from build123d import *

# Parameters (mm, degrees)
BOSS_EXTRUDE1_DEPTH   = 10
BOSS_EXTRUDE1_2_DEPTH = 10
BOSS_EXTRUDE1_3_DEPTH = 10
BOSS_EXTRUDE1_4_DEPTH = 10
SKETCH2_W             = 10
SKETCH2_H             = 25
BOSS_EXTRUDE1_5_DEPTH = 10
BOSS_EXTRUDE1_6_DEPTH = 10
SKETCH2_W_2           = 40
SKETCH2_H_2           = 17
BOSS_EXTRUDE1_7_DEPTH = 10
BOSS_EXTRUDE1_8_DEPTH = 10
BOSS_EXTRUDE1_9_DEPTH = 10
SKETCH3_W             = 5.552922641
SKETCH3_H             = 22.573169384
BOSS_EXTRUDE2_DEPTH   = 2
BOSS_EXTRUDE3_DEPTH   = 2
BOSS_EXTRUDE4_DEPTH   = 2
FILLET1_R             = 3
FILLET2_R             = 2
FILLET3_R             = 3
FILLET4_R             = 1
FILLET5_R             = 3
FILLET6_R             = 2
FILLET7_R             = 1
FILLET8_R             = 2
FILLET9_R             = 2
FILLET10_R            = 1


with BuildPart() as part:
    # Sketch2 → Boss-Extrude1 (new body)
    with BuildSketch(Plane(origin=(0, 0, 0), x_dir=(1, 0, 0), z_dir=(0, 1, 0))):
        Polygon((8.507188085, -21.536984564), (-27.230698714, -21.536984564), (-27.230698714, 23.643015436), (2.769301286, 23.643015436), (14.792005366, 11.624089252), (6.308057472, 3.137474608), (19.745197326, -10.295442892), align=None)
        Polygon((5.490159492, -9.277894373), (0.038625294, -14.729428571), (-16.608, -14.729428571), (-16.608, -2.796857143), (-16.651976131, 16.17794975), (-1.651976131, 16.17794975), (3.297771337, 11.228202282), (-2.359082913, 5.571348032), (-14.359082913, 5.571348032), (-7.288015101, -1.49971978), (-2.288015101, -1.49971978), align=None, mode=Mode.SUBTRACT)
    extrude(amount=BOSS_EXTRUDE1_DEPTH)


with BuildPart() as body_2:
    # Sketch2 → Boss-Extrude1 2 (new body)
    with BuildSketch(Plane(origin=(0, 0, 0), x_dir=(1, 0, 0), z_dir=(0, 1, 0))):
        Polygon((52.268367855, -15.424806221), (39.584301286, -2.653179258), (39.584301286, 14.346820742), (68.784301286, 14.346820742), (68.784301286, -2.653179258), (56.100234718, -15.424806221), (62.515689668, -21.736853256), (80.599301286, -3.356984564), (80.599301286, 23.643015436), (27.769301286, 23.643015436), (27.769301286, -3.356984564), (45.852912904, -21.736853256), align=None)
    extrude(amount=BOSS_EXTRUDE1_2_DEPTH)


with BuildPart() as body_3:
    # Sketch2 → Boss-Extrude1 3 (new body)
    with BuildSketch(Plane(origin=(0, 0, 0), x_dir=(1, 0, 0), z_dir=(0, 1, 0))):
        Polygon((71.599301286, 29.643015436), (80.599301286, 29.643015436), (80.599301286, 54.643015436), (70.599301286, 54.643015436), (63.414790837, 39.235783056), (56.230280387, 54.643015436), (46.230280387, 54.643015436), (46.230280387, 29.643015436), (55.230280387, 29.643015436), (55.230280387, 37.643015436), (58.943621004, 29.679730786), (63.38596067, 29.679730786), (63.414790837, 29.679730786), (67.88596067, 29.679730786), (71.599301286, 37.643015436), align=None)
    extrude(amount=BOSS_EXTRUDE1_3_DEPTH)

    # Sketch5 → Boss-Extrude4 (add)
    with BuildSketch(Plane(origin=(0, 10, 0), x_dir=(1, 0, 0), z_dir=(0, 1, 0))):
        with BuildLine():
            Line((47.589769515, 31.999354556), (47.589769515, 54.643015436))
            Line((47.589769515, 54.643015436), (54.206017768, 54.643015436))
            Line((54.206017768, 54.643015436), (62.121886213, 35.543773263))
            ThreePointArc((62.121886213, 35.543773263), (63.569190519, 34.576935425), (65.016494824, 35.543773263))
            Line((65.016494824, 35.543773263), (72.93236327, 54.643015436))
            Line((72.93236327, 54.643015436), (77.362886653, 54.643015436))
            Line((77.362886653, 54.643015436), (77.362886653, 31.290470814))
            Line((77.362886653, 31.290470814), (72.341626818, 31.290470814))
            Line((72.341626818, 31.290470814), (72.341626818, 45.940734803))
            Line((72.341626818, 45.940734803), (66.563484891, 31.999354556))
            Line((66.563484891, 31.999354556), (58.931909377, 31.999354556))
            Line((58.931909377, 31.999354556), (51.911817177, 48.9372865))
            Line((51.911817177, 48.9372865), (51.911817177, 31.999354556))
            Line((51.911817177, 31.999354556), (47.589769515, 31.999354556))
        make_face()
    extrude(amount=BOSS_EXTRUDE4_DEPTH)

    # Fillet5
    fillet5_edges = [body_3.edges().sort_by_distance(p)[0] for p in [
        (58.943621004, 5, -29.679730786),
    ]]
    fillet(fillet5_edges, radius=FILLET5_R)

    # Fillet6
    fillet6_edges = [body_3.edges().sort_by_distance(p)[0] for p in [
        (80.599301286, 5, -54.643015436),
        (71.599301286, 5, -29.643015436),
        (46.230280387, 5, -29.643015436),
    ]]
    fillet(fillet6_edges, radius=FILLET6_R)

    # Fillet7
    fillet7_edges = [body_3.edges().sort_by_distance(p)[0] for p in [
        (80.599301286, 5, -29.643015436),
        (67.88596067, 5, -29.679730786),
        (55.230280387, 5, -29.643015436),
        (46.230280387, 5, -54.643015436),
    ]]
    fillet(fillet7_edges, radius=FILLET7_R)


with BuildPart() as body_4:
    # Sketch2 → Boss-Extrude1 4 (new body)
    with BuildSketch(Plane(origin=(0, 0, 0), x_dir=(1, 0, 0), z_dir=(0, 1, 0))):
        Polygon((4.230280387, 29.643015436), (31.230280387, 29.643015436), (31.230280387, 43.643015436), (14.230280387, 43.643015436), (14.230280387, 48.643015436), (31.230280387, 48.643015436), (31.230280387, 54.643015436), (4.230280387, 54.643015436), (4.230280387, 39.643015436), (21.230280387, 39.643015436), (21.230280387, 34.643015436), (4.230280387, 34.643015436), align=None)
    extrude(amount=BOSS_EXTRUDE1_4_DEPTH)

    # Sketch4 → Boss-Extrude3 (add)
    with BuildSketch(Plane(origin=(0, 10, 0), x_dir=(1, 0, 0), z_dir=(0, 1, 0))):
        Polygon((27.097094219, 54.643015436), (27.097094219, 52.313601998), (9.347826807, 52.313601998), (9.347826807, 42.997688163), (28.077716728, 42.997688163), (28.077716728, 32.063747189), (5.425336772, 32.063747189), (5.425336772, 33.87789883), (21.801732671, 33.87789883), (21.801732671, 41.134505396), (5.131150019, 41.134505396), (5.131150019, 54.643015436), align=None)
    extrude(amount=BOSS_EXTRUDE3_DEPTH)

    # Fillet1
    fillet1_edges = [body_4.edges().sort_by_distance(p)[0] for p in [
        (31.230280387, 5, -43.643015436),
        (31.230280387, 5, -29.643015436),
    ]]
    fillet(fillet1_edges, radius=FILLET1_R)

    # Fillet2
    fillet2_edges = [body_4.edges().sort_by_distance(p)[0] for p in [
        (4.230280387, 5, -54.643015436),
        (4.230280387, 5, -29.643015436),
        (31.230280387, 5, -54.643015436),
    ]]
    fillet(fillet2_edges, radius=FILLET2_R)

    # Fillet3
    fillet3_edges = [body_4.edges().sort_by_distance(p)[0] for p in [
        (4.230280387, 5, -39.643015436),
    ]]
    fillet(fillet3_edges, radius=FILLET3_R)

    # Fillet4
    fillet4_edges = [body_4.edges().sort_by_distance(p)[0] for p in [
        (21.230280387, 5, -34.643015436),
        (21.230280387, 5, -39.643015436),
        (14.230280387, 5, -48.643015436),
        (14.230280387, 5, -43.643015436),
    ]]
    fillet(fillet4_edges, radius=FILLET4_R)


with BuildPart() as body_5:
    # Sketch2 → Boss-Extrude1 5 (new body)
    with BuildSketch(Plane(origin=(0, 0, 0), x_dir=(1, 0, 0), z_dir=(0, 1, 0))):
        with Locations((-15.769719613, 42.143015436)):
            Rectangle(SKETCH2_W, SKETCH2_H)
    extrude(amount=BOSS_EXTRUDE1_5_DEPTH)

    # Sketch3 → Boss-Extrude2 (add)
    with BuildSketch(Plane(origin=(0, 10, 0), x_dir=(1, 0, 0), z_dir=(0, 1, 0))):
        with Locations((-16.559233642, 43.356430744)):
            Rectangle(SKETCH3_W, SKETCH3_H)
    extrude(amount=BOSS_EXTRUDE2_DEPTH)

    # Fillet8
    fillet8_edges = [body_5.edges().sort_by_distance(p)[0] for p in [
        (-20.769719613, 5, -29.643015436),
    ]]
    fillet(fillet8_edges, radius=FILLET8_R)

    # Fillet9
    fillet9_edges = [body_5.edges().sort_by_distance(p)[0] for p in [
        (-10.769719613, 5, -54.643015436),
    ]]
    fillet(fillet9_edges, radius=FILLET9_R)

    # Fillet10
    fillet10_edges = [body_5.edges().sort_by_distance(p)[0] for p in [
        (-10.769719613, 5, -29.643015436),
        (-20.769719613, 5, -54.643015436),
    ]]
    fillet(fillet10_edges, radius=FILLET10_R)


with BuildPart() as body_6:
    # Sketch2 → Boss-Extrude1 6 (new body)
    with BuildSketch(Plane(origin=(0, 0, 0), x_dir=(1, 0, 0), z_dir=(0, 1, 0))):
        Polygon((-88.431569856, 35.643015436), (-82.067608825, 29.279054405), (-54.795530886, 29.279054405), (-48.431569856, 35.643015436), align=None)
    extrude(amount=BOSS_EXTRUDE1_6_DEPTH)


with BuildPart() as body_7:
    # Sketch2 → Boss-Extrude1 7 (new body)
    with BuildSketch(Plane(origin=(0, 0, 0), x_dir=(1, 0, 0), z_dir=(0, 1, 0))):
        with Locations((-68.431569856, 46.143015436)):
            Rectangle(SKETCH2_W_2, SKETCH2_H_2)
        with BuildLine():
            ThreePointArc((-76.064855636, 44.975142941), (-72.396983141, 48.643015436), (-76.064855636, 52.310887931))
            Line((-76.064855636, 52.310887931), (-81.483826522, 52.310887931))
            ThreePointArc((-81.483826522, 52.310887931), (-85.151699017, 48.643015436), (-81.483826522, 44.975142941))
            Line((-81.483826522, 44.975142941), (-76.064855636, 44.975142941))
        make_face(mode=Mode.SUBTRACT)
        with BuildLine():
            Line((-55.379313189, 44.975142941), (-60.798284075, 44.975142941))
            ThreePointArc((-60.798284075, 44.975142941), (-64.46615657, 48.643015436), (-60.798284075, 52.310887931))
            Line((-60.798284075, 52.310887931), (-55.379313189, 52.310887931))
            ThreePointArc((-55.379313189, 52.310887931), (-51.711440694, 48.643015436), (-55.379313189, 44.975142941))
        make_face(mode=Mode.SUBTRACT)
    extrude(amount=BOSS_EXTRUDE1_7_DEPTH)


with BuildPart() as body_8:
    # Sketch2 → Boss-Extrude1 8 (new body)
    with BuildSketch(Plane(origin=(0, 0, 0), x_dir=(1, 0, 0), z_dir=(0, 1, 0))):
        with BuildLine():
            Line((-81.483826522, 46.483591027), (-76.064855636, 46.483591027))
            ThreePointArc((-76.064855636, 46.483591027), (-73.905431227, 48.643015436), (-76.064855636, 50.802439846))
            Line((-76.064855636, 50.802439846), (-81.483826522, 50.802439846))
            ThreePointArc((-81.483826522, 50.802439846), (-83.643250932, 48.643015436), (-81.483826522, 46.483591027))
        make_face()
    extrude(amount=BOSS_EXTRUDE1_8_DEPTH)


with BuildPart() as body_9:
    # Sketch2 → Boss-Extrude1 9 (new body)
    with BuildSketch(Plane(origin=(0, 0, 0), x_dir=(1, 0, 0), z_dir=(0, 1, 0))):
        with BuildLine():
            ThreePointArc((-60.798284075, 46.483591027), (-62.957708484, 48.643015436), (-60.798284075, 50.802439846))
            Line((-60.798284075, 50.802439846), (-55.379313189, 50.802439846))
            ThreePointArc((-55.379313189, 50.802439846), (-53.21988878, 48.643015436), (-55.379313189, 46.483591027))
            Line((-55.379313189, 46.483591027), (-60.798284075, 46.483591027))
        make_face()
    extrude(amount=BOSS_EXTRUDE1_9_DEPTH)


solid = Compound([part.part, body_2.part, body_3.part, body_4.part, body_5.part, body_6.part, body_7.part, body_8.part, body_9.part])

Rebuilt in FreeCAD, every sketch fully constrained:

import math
import FreeCAD as App
import Part
import Sketcher

V = App.Vector
Q = App.Units.Quantity


def edges_at(feature, points):
    """Names of the edges that pass closest to the given points."""
    edges = feature.Shape.Edges
    near = lambda p: min(range(len(edges)), key=lambda i: edges[i].distToShape(Part.Vertex(*p))[0])
    return sorted({f"Edge{near(p) + 1}" for p in points})


def add_polygon(sketch, points):
    """Adds a closed chain of lines whose ends are joined by coincident constraints."""
    first, n = sketch.GeometryCount, len(points)
    for a, b in zip(points, points[1:] + points[:1]):
        sketch.addGeometry(Part.LineSegment(App.Vector(*a, 0), App.Vector(*b, 0)), False)
    for i in range(n):
        sketch.addConstraint(Sketcher.Constraint("Coincident", first + i, 2, first + (i + 1) % n, 1))

doc = App.newDocument("Part")
params = doc.addObject("Spreadsheet::Sheet", "Params")
for row, (alias, value) in enumerate([
    ("sketch1_width", "30 mm"),
    ("sketch1_width2", "15 mm"),
    ("sketch1_width3", "12 mm"),
    ("sketch1_width4", "5 mm"),
    ("sketch1_length", "19 mm"),
    ("pad1_length", "10 mm"),
    ("sketch2_height", "17 mm"),
    ("sketch2_height2", "27 mm"),
    ("sketch2_length", "18 mm"),
    ("sketch2_length2", "9 mm"),
    ("sketch2_width", "29.2 mm"),
    ("pad2_length", "10 mm"),
    ("sketch3_width", "9 mm"),
    ("sketch3_width2", "10 mm"),
    ("sketch3_height", "25 mm"),
    ("sketch3_height2", "8 mm"),
    ("sketch3_length", "17 mm"),
    ("pad3_length", "10 mm"),
    ("pad4_length", "2 mm"),
    ("fillet_radius", "3 mm"),
    ("fillet2_radius", "2 mm"),
    ("fillet3_radius", "1 mm"),
    ("sketch5_width", "27 mm"),
    ("sketch5_width2", "17 mm"),
    ("sketch5_height", "14 mm"),
    ("sketch5_height2", "5 mm"),
    ("sketch5_height3", "6 mm"),
    ("pad5_length", "10 mm"),
    ("pad6_length", "2 mm"),
    ("fillet4_radius", "3 mm"),
    ("fillet5_radius", "2 mm"),
    ("fillet6_radius", "3 mm"),
    ("fillet7_radius", "1 mm"),
    ("sketch7_width", "10 mm"),
    ("sketch7_height", "25 mm"),
    ("pad7_length", "10 mm"),
    ("pad8_length", "2 mm"),
    ("fillet8_radius", "2 mm"),
    ("fillet9_radius", "2 mm"),
    ("fillet10_radius", "1 mm"),
    ("sketch9_width", "40 mm"),
    ("sketch9_length", "9 mm"),
    ("pad9_length", "10 mm"),
    ("sketch10_width", "40 mm"),
    ("sketch10_height", "17 mm"),
    ("pad10_length", "10 mm"),
    ("pad11_length", "10 mm"),
    ("pad12_length", "10 mm"),
], start=1):
    params.set(f"A{row}", alias)
    params.set(f"B{row}", "=" + value)
    params.setAlias(f"B{row}", alias)

body = doc.addObject("PartDesign::Body", "Body")

# Sketch on XZ plane
sketch1 = body.newObject("Sketcher::SketchObject", "Sketch")
sketch1.AttachmentSupport = (doc.getObject("XZ_Plane"), [""])
sketch1.MapMode = "FlatFace"
add_polygon(sketch1, [(-27.230699, 21.536985), (8.507188, 21.536985), (19.745197, 10.295443), (6.308057, -3.137475), (14.792005, -11.624089), (2.769301, -23.643015), (-27.230699, -23.643015)])  # lines 0-6
add_polygon(sketch1, [(5.490159, 9.277894), (0.038625, 14.729429), (-16.608, 14.729429), (-16.608, 2.796857), (-16.651976, -16.17795), (-1.651976, -16.17795), (3.297771, -11.228202), (-2.359083, -5.571348), (-14.359083, -5.571348), (-7.288015, 1.49972), (-2.288015, 1.49972)])  # lines 7-17
sketch1.addConstraint(Sketcher.Constraint("Horizontal", 0))
sketch1.addConstraint(Sketcher.Constraint("Horizontal", 5))
sketch1.addConstraint(Sketcher.Constraint("Vertical", 6))
sketch1.addConstraint(Sketcher.Constraint("Horizontal", 8))
sketch1.addConstraint(Sketcher.Constraint("Vertical", 9))
sketch1.addConstraint(Sketcher.Constraint("Horizontal", 11))
sketch1.addConstraint(Sketcher.Constraint("Horizontal", 14))
sketch1.addConstraint(Sketcher.Constraint("Horizontal", 16))
sketch1.addConstraint(Sketcher.Constraint("Perpendicular", 1, 2))
sketch1.addConstraint(Sketcher.Constraint("Perpendicular", 2, 3))
sketch1.addConstraint(Sketcher.Constraint("Perpendicular", 3, 4))
sketch1.addConstraint(Sketcher.Constraint("Perpendicular", 7, 12))
sketch1.addConstraint(Sketcher.Constraint("Perpendicular", 12, 13))
sketch1.addConstraint(Sketcher.Constraint("Perpendicular", 13, 15))
sketch1.addConstraint(Sketcher.Constraint("Parallel", 15, 17))
sketch1.addConstraint(Sketcher.Constraint("DistanceX", 5, 2, 5, 1, Q("30 mm")))
sketch1.addConstraint(Sketcher.Constraint("DistanceX", 11, 1, 11, 2, Q("15 mm")))
sketch1.addConstraint(Sketcher.Constraint("DistanceX", 14, 2, 14, 1, Q("12 mm")))
sketch1.addConstraint(Sketcher.Constraint("DistanceX", 16, 1, 16, 2, Q("5 mm")))
sketch1.addConstraint(Sketcher.Constraint("Angle", 7, Q("135 deg")))
sketch1.addConstraint(Sketcher.Constraint("Distance", 2, Q("19 mm")))
sketch1.addConstraint(Sketcher.Constraint("Distance", 3, Q("12 mm")))
sketch1.addConstraint(Sketcher.Constraint("Distance", 4, Q("17 mm")))
sketch1.addConstraint(Sketcher.Constraint("Distance", 12, Q("7 mm")))
sketch1.addConstraint(Sketcher.Constraint("Distance", 13, Q("8 mm")))
sketch1.addConstraint(Sketcher.Constraint("Distance", 15, Q("10 mm")))
sketch1.addConstraint(Sketcher.Constraint("Distance", 17, Q("11 mm")))
sketch1.addConstraint(Sketcher.Constraint("DistanceY", 6, 1, 6, 2, Q("45.18 mm")))
sketch1.addConstraint(Sketcher.Constraint("DistanceX", 8, 2, -1, 1, Q("16.608 mm")))
sketch1.addConstraint(Sketcher.Constraint("DistanceY", 9, 2, 9, 1, Q("11.932571 mm")))
sketch1.addConstraint(Sketcher.Constraint("DistanceX", -1, 1, 4, 2, Q("2.769301 mm")))
sketch1.addConstraint(Sketcher.Constraint("DistanceX", 0, 1, 0, 2, Q("35.737887 mm")))
sketch1.addConstraint(Sketcher.Constraint("DistanceX", 8, 2, 8, 1, Q("16.646625 mm")))
sketch1.addConstraint(Sketcher.Constraint("DistanceY", 3, 2, -1, 1, Q("11.624089 mm")))
sketch1.addConstraint(Sketcher.Constraint("DistanceY", -1, 1, 7, 2, Q("14.729429 mm")))
sketch1.addConstraint(Sketcher.Constraint("DistanceY", 10, 2, -1, 1, Q("16.17795 mm")))
sketch1.setExpression("Constraints[33]", "Params.sketch1_width")
sketch1.setExpression("Constraints[34]", "Params.sketch1_width2")
sketch1.setExpression("Constraints[35]", "Params.sketch1_width3")
sketch1.setExpression("Constraints[36]", "Params.sketch1_width4")
sketch1.setExpression("Constraints[38]", "Params.sketch1_length")
pad1 = body.newObject("PartDesign::Pad", "Pad")
pad1.Profile = sketch1
pad1.setExpression("Length", "Params.pad1_length")
pad1.Reversed = True
body2 = doc.addObject("PartDesign::Body", "Body001")

# Sketch on XZ plane
sketch2 = body2.newObject("Sketcher::SketchObject", "Sketch001")
sketch2.AttachmentSupport = (doc.getObject("XZ_Plane001"), [""])
sketch2.MapMode = "FlatFace"
add_polygon(sketch2, [(52.268368, 15.424806), (39.584301, 2.653179), (39.584301, -14.346821), (68.784301, -14.346821), (68.784301, 2.653179), (56.100235, 15.424806), (62.51569, 21.736853), (80.599301, 3.356985), (80.599301, -23.643015), (27.769301, -23.643015), (27.769301, 3.356985), (45.852913, 21.736853)])  # lines 0-11
sketch2.addConstraint(Sketcher.Constraint("Vertical", 1))
sketch2.addConstraint(Sketcher.Constraint("Horizontal", 2))
sketch2.addConstraint(Sketcher.Constraint("Vertical", 3))
sketch2.addConstraint(Sketcher.Constraint("Vertical", 7))
sketch2.addConstraint(Sketcher.Constraint("Horizontal", 8))
sketch2.addConstraint(Sketcher.Constraint("Vertical", 9))
sketch2.addConstraint(Sketcher.Constraint("Perpendicular", 5, 6))
sketch2.addConstraint(Sketcher.Constraint("Perpendicular", 10, 11))
sketch2.addConstraint(Sketcher.Constraint("Horizontal", 0, 2, 3, 2))
sketch2.addConstraint(Sketcher.Constraint("Horizontal", 6, 2, 9, 2))
sketch2.addConstraint(Sketcher.Constraint("Horizontal", 5, 2, 10, 2))
sketch2.addConstraint(Sketcher.Constraint("Horizontal", 4, 2, 11, 2))
sketch2.addConstraint(Sketcher.Constraint("Equal", 0, 4))
sketch2.addConstraint(Sketcher.Constraint("Equal", 6, 10))
sketch2.addConstraint(Sketcher.Constraint("DistanceY", 1, 2, 1, 1, Q("17 mm")))
sketch2.addConstraint(Sketcher.Constraint("DistanceY", 7, 2, 7, 1, Q("27 mm")))
sketch2.addConstraint(Sketcher.Constraint("Distance", 0, Q("18 mm")))
sketch2.addConstraint(Sketcher.Constraint("Distance", 5, Q("9 mm")))
sketch2.addConstraint(Sketcher.Constraint("DistanceX", 2, 1, 2, 2, Q("29.2 mm")))
sketch2.addConstraint(Sketcher.Constraint("DistanceX", 8, 2, 8, 1, Q("52.83 mm")))
sketch2.addConstraint(Sketcher.Constraint("DistanceX", -1, 1, 0, 2, Q("39.584301 mm")))
sketch2.addConstraint(Sketcher.Constraint("DistanceY", -1, 1, 0, 2, Q("2.653179 mm")))
sketch2.addConstraint(Sketcher.Constraint("DistanceX", -1, 1, 5, 2, Q("62.51569 mm")))
sketch2.addConstraint(Sketcher.Constraint("DistanceY", 6, 2, 5, 2, Q("18.379869 mm")))
sketch2.setExpression("Constraints[26]", "Params.sketch2_height")
sketch2.setExpression("Constraints[27]", "Params.sketch2_height2")
sketch2.setExpression("Constraints[28]", "Params.sketch2_length")
sketch2.setExpression("Constraints[29]", "Params.sketch2_length2")
sketch2.setExpression("Constraints[30]", "Params.sketch2_width")
pad2 = body2.newObject("PartDesign::Pad", "Pad001")
pad2.Profile = sketch2
pad2.setExpression("Length", "Params.pad2_length")
pad2.Reversed = True
body3 = doc.addObject("PartDesign::Body", "Body002")

# Sketch on XZ plane
sketch3 = body3.newObject("Sketcher::SketchObject", "Sketch002")
sketch3.AttachmentSupport = (doc.getObject("XZ_Plane002"), [""])
sketch3.MapMode = "FlatFace"
add_polygon(sketch3, [(71.599301, -29.643015), (80.599301, -29.643015), (80.599301, -54.643015), (70.599301, -54.643015), (63.414791, -39.235783), (56.23028, -54.643015), (46.23028, -54.643015), (46.23028, -29.643015), (55.23028, -29.643015), (55.23028, -37.643015), (58.943621, -29.679731), (67.885961, -29.679731), (71.599301, -37.643015)])  # lines 0-12
sketch3.addConstraint(Sketcher.Constraint("Horizontal", 0))
sketch3.addConstraint(Sketcher.Constraint("Vertical", 1))
sketch3.addConstraint(Sketcher.Constraint("Horizontal", 2))
sketch3.addConstraint(Sketcher.Constraint("Horizontal", 5))
sketch3.addConstraint(Sketcher.Constraint("Vertical", 6))
sketch3.addConstraint(Sketcher.Constraint("Horizontal", 7))
sketch3.addConstraint(Sketcher.Constraint("Vertical", 8))
sketch3.addConstraint(Sketcher.Constraint("Horizontal", 10))
sketch3.addConstraint(Sketcher.Constraint("Vertical", 12))
sketch3.addConstraint(Sketcher.Constraint("Parallel", 4, 9))
sketch3.addConstraint(Sketcher.Constraint("Parallel", 3, 11))
sketch3.addConstraint(Sketcher.Constraint("Horizontal", 2, 2, 4, 2))
sketch3.addConstraint(Sketcher.Constraint("Horizontal", 0, 2, 6, 2))
sketch3.addConstraint(Sketcher.Constraint("Horizontal", 8, 2, 11, 2))
sketch3.addConstraint(Sketcher.Constraint("Equal", 2, 5))
sketch3.addConstraint(Sketcher.Constraint("Equal", 0, 7))
sketch3.addConstraint(Sketcher.Constraint("Equal", 3, 4))
sketch3.addConstraint(Sketcher.Constraint("DistanceX", 0, 1, 0, 2, Q("9 mm")))
sketch3.addConstraint(Sketcher.Constraint("DistanceX", 2, 2, 2, 1, Q("10 mm")))
sketch3.addConstraint(Sketcher.Constraint("DistanceY", 1, 2, 1, 1, Q("25 mm")))
sketch3.addConstraint(Sketcher.Constraint("DistanceY", 8, 2, 8, 1, Q("8 mm")))
sketch3.addConstraint(Sketcher.Constraint("Angle", 3, Q("115 deg")))
sketch3.addConstraint(Sketcher.Constraint("Distance", 3, Q("17 mm")))
sketch3.addConstraint(Sketcher.Constraint("DistanceX", 10, 1, 10, 2, Q("8.94234 mm")))
sketch3.addConstraint(Sketcher.Constraint("DistanceX", -1, 1, 0, 2, Q("80.599301 mm")))
sketch3.addConstraint(Sketcher.Constraint("DistanceY", 9, 2, -1, 1, Q("29.679731 mm")))
sketch3.setExpression("Constraints[30]", "Params.sketch3_width")
sketch3.setExpression("Constraints[31]", "Params.sketch3_width2")
sketch3.setExpression("Constraints[32]", "Params.sketch3_height")
sketch3.setExpression("Constraints[33]", "Params.sketch3_height2")
sketch3.setExpression("Constraints[35]", "Params.sketch3_length")
pad3 = body3.newObject("PartDesign::Pad", "Pad002")
pad3.Profile = sketch3
pad3.setExpression("Length", "Params.pad3_length")
pad3.Reversed = True

# Sketch on XZ plane
sketch4 = body3.newObject("Sketcher::SketchObject", "Sketch003")
sketch4.AttachmentSupport = (doc.getObject("XZ_Plane002"), [""])
sketch4.MapMode = "FlatFace"
sketch4.AttachmentOffset = App.Placement(V(0, 0, -10), App.Rotation())
sketch4.addGeometry(Part.LineSegment(V(47.58977, -54.643015, 0), V(47.58977, -31.999355, 0)), False)
sketch4.addGeometry(Part.LineSegment(V(47.58977, -31.999355, 0), V(51.911817, -31.999355, 0)), False)
sketch4.addGeometry(Part.LineSegment(V(51.911817, -31.999355, 0), V(51.911817, -48.937286, 0)), False)
sketch4.addGeometry(Part.LineSegment(V(51.911817, -48.937286, 0), V(58.931909, -31.999355, 0)), False)
sketch4.addGeometry(Part.LineSegment(V(58.931909, -31.999355, 0), V(66.563485, -31.999355, 0)), False)
sketch4.addGeometry(Part.LineSegment(V(66.563485, -31.999355, 0), V(72.341627, -45.940735, 0)), False)
sketch4.addGeometry(Part.LineSegment(V(72.341627, -45.940735, 0), V(72.341627, -31.290471, 0)), False)
sketch4.addGeometry(Part.LineSegment(V(72.341627, -31.290471, 0), V(77.362887, -31.290471, 0)), False)
sketch4.addGeometry(Part.LineSegment(V(77.362887, -31.290471, 0), V(77.362887, -54.643015, 0)), False)
sketch4.addGeometry(Part.LineSegment(V(77.362887, -54.643015, 0), V(72.932363, -54.643015, 0)), False)
sketch4.addGeometry(Part.LineSegment(V(72.932363, -54.643015, 0), V(65.016495, -35.543773, 0)), False)
sketch4.addGeometry(Part.ArcOfCircle(Part.Circle(V(63.569191, -36.143623, 0), V(0, 0, 1), 1.566687), math.radians(22.512042), math.radians(157.487958)), False)
sketch4.addGeometry(Part.LineSegment(V(62.121886, -35.543773, 0), V(54.206018, -54.643015, 0)), False)
sketch4.addGeometry(Part.LineSegment(V(54.206018, -54.643015, 0), V(47.58977, -54.643015, 0)), False)
sketch4.addConstraint(Sketcher.Constraint("Coincident", 0, 2, 1, 1))
sketch4.addConstraint(Sketcher.Constraint("Coincident", 1, 2, 2, 1))
sketch4.addConstraint(Sketcher.Constraint("Coincident", 2, 2, 3, 1))
sketch4.addConstraint(Sketcher.Constraint("Coincident", 3, 2, 4, 1))
sketch4.addConstraint(Sketcher.Constraint("Coincident", 4, 2, 5, 1))
sketch4.addConstraint(Sketcher.Constraint("Coincident", 5, 2, 6, 1))
sketch4.addConstraint(Sketcher.Constraint("Coincident", 6, 2, 7, 1))
sketch4.addConstraint(Sketcher.Constraint("Coincident", 7, 2, 8, 1))
sketch4.addConstraint(Sketcher.Constraint("Coincident", 8, 2, 9, 1))
sketch4.addConstraint(Sketcher.Constraint("Coincident", 9, 2, 10, 1))
sketch4.addConstraint(Sketcher.Constraint("Tangent", 10, 2, 11, 1))
sketch4.addConstraint(Sketcher.Constraint("Tangent", 11, 2, 12, 1))
sketch4.addConstraint(Sketcher.Constraint("Coincident", 12, 2, 13, 1))
sketch4.addConstraint(Sketcher.Constraint("Coincident", 13, 2, 0, 1))
sketch4.addConstraint(Sketcher.Constraint("Vertical", 0))
sketch4.addConstraint(Sketcher.Constraint("Horizontal", 1))
sketch4.addConstraint(Sketcher.Constraint("Vertical", 2))
sketch4.addConstraint(Sketcher.Constraint("Horizontal", 4))
sketch4.addConstraint(Sketcher.Constraint("Vertical", 6))
sketch4.addConstraint(Sketcher.Constraint("Horizontal", 7))
sketch4.addConstraint(Sketcher.Constraint("Vertical", 8))
sketch4.addConstraint(Sketcher.Constraint("Horizontal", 9))
sketch4.addConstraint(Sketcher.Constraint("Horizontal", 13))
sketch4.addConstraint(Sketcher.Constraint("Parallel", 5, 10))
sketch4.addConstraint(Sketcher.Constraint("Parallel", 3, 12))
sketch4.addConstraint(Sketcher.Constraint("Horizontal", 1, 2, 3, 2))
sketch4.addConstraint(Sketcher.Constraint("Horizontal", 10, 2, 11, 2))
sketch4.addConstraint(Sketcher.Constraint("Horizontal", 9, 2, 12, 2))
sketch4.addConstraint(Sketcher.Constraint("Radius", 11, Q("1.566687 mm")))
sketch4.addConstraint(Sketcher.Constraint("DistanceX", 7, 1, 7, 2, Q("5.02126 mm")))
sketch4.addConstraint(Sketcher.Constraint("DistanceX", 13, 2, 13, 1, Q("6.616248 mm")))
sketch4.addConstraint(Sketcher.Constraint("DistanceY", 0, 1, 0, 2, Q("22.643661 mm")))
sketch4.addConstraint(Sketcher.Constraint("DistanceY", 2, 2, 2, 1, Q("16.937932 mm")))
sketch4.addConstraint(Sketcher.Constraint("DistanceX", 4, 2, 7, 2, Q("10.799402 mm")))
sketch4.addConstraint(Sketcher.Constraint("DistanceX", 11, 2, 4, 2, Q("4.441599 mm")))
sketch4.addConstraint(Sketcher.Constraint("DistanceX", 2, 2, 12, 2, Q("2.294201 mm")))
sketch4.addConstraint(Sketcher.Constraint("Distance", 10, Q("20.674671 mm")))
sketch4.addConstraint(Sketcher.Constraint("DistanceX", 4, 1, 4, 2, Q("7.631576 mm")))
sketch4.addConstraint(Sketcher.Constraint("DistanceY", 6, 1, 6, 2, Q("14.650264 mm")))
sketch4.addConstraint(Sketcher.Constraint("DistanceX", -1, 1, 11, 3, Q("63.569191 mm")))
sketch4.addConstraint(Sketcher.Constraint("DistanceY", 6, 2, -1, 1, Q("31.290471 mm")))
pad4 = body3.newObject("PartDesign::Pad", "Pad003")
pad4.Profile = sketch4
pad4.setExpression("Length", "Params.pad4_length")
pad4.Reversed = True
doc.recompute()

fillet = body3.newObject("PartDesign::Fillet", "Fillet")
fillet.Base = (pad4, edges_at(pad4, [(58.944, 5, -29.68)]))
fillet.setExpression("Radius", "Params.fillet_radius")
doc.recompute()

fillet2 = body3.newObject("PartDesign::Fillet", "Fillet001")
fillet2.Base = (fillet, edges_at(fillet, [(80.599, 5, -54.643), (71.599, 5, -29.643), (46.23, 5, -29.643)]))
fillet2.setExpression("Radius", "Params.fillet2_radius")
doc.recompute()

fillet3 = body3.newObject("PartDesign::Fillet", "Fillet002")
fillet3.Base = (fillet2, edges_at(fillet2, [
    (80.599, 5, -29.643),
    (67.886, 5, -29.68),
    (55.23, 5, -29.643),
    (46.23, 5, -54.643),
]))
fillet3.setExpression("Radius", "Params.fillet3_radius")
body4 = doc.addObject("PartDesign::Body", "Body003")

# Sketch on XZ plane
sketch5 = body4.newObject("Sketcher::SketchObject", "Sketch004")
sketch5.AttachmentSupport = (doc.getObject("XZ_Plane003"), [""])
sketch5.MapMode = "FlatFace"
add_polygon(sketch5, [(4.23028, -29.643015), (31.23028, -29.643015), (31.23028, -43.643015), (14.23028, -43.643015), (14.23028, -48.643015), (31.23028, -48.643015), (31.23028, -54.643015), (4.23028, -54.643015), (4.23028, -39.643015), (21.23028, -39.643015), (21.23028, -34.643015), (4.23028, -34.643015)])  # lines 0-11
sketch5.addConstraint(Sketcher.Constraint("Horizontal", 0))
sketch5.addConstraint(Sketcher.Constraint("Vertical", 1))
sketch5.addConstraint(Sketcher.Constraint("Horizontal", 2))
sketch5.addConstraint(Sketcher.Constraint("Vertical", 3))
sketch5.addConstraint(Sketcher.Constraint("Horizontal", 4))
sketch5.addConstraint(Sketcher.Constraint("Vertical", 5))
sketch5.addConstraint(Sketcher.Constraint("Horizontal", 6))
sketch5.addConstraint(Sketcher.Constraint("Vertical", 7))
sketch5.addConstraint(Sketcher.Constraint("Horizontal", 8))
sketch5.addConstraint(Sketcher.Constraint("Vertical", 9))
sketch5.addConstraint(Sketcher.Constraint("Horizontal", 10))
sketch5.addConstraint(Sketcher.Constraint("Vertical", 11))
sketch5.addConstraint(Sketcher.Constraint("Vertical", 1, 2, 4, 2))
sketch5.addConstraint(Sketcher.Constraint("Vertical", 7, 2, 10, 2))
sketch5.addConstraint(Sketcher.Constraint("Equal", 4, 8))
sketch5.addConstraint(Sketcher.Constraint("Equal", 3, 9))
sketch5.addConstraint(Sketcher.Constraint("Equal", 9, 11))
sketch5.addConstraint(Sketcher.Constraint("DistanceX", 0, 1, 0, 2, Q("27 mm")))
sketch5.addConstraint(Sketcher.Constraint("DistanceX", 2, 2, 2, 1, Q("17 mm")))
sketch5.addConstraint(Sketcher.Constraint("DistanceY", 1, 2, 1, 1, Q("14 mm")))
sketch5.addConstraint(Sketcher.Constraint("DistanceY", 3, 2, 3, 1, Q("5 mm")))
sketch5.addConstraint(Sketcher.Constraint("DistanceY", 5, 2, 5, 1, Q("6 mm")))
sketch5.addConstraint(Sketcher.Constraint("DistanceX", -1, 1, 0, 2, Q("31.23028 mm")))
sketch5.addConstraint(Sketcher.Constraint("DistanceY", 0, 2, -1, 1, Q("29.643015 mm")))
sketch5.setExpression("Constraints[29]", "Params.sketch5_width")
sketch5.setExpression("Constraints[30]", "Params.sketch5_width2")
sketch5.setExpression("Constraints[31]", "Params.sketch5_height")
sketch5.setExpression("Constraints[32]", "Params.sketch5_height2")
sketch5.setExpression("Constraints[33]", "Params.sketch5_height3")
pad5 = body4.newObject("PartDesign::Pad", "Pad004")
pad5.Profile = sketch5
pad5.setExpression("Length", "Params.pad5_length")
pad5.Reversed = True

# Sketch on XZ plane
sketch6 = body4.newObject("Sketcher::SketchObject", "Sketch005")
sketch6.AttachmentSupport = (doc.getObject("XZ_Plane003"), [""])
sketch6.MapMode = "FlatFace"
sketch6.AttachmentOffset = App.Placement(V(0, 0, -10), App.Rotation())
add_polygon(sketch6, [(27.097094, -52.313602), (27.097094, -54.643015), (5.13115, -54.643015), (5.13115, -41.134505), (21.801733, -41.134505), (21.801733, -33.877899), (5.425337, -33.877899), (5.425337, -32.063747), (28.077717, -32.063747), (28.077717, -42.997688), (9.347827, -42.997688), (9.347827, -52.313602)])  # lines 0-11
sketch6.addConstraint(Sketcher.Constraint("Vertical", 0))
sketch6.addConstraint(Sketcher.Constraint("Horizontal", 1))
sketch6.addConstraint(Sketcher.Constraint("Vertical", 2))
sketch6.addConstraint(Sketcher.Constraint("Horizontal", 3))
sketch6.addConstraint(Sketcher.Constraint("Vertical", 4))
sketch6.addConstraint(Sketcher.Constraint("Horizontal", 5))
sketch6.addConstraint(Sketcher.Constraint("Vertical", 6))
sketch6.addConstraint(Sketcher.Constraint("Horizontal", 7))
sketch6.addConstraint(Sketcher.Constraint("Vertical", 8))
sketch6.addConstraint(Sketcher.Constraint("Horizontal", 9))
sketch6.addConstraint(Sketcher.Constraint("Vertical", 10))
sketch6.addConstraint(Sketcher.Constraint("Horizontal", 11))
sketch6.addConstraint(Sketcher.Constraint("DistanceX", 7, 1, 7, 2, Q("22.65238 mm")))
sketch6.addConstraint(Sketcher.Constraint("DistanceX", 9, 2, 9, 1, Q("18.72989 mm")))
sketch6.addConstraint(Sketcher.Constraint("DistanceY", 2, 1, 2, 2, Q("13.50851 mm")))
sketch6.addConstraint(Sketcher.Constraint("DistanceY", 6, 1, 6, 2, Q("1.814152 mm")))
sketch6.addConstraint(Sketcher.Constraint("DistanceY", 8, 2, 8, 1, Q("10.933941 mm")))
sketch6.addConstraint(Sketcher.Constraint("DistanceY", 4, 2, -1, 1, Q("33.877899 mm")))
sketch6.addConstraint(Sketcher.Constraint("DistanceY", 10, 2, -1, 1, Q("52.313602 mm")))
sketch6.addConstraint(Sketcher.Constraint("DistanceX", 1, 2, 1, 1, Q("21.965944 mm")))
sketch6.addConstraint(Sketcher.Constraint("DistanceX", 3, 1, 3, 2, Q("16.670583 mm")))
sketch6.addConstraint(Sketcher.Constraint("DistanceX", 5, 2, 5, 1, Q("16.376396 mm")))
sketch6.addConstraint(Sketcher.Constraint("DistanceY", 0, 2, 0, 1, Q("2.329413 mm")))
sketch6.addConstraint(Sketcher.Constraint("DistanceX", -1, 1, 1, 2, Q("5.13115 mm")))
pad6 = body4.newObject("PartDesign::Pad", "Pad005")
pad6.Profile = sketch6
pad6.setExpression("Length", "Params.pad6_length")
pad6.Reversed = True
doc.recompute()

fillet4 = body4.newObject("PartDesign::Fillet", "Fillet003")
fillet4.Base = (pad6, edges_at(pad6, [(31.23, 5, -43.643), (31.23, 5, -29.643)]))
fillet4.setExpression("Radius", "Params.fillet4_radius")
doc.recompute()

fillet5 = body4.newObject("PartDesign::Fillet", "Fillet004")
fillet5.Base = (fillet4, edges_at(fillet4, [(4.23, 5, -54.643), (4.23, 5, -29.643), (31.23, 5, -54.643)]))
fillet5.setExpression("Radius", "Params.fillet5_radius")
doc.recompute()

fillet6 = body4.newObject("PartDesign::Fillet", "Fillet005")
fillet6.Base = (fillet5, edges_at(fillet5, [(4.23, 5, -39.643)]))
fillet6.setExpression("Radius", "Params.fillet6_radius")
doc.recompute()

fillet7 = body4.newObject("PartDesign::Fillet", "Fillet006")
fillet7.Base = (fillet6, edges_at(fillet6, [
    (21.23, 5, -34.643),
    (21.23, 5, -39.643),
    (14.23, 5, -48.643),
    (14.23, 5, -43.643),
]))
fillet7.setExpression("Radius", "Params.fillet7_radius")
body5 = doc.addObject("PartDesign::Body", "Body004")

# Sketch on XZ plane
sketch7 = body5.newObject("Sketcher::SketchObject", "Sketch006")
sketch7.AttachmentSupport = (doc.getObject("XZ_Plane004"), [""])
sketch7.MapMode = "FlatFace"
add_polygon(sketch7, [(-20.76972, -54.643015), (-20.76972, -29.643015), (-10.76972, -29.643015), (-10.76972, -54.643015)])  # lines 0-3
sketch7.addConstraint(Sketcher.Constraint("Vertical", 0))
sketch7.addConstraint(Sketcher.Constraint("Horizontal", 1))
sketch7.addConstraint(Sketcher.Constraint("Vertical", 2))
sketch7.addConstraint(Sketcher.Constraint("Horizontal", 3))
sketch7.addConstraint(Sketcher.Constraint("DistanceX", 1, 1, 1, 2, Q("10 mm")))
sketch7.addConstraint(Sketcher.Constraint("DistanceY", 0, 1, 0, 2, Q("25 mm")))
sketch7.addConstraint(Sketcher.Constraint("DistanceX", 0, 2, -1, 1, Q("20.76972 mm")))
sketch7.addConstraint(Sketcher.Constraint("DistanceY", 0, 2, -1, 1, Q("29.643015 mm")))
sketch7.setExpression("Constraints[8]", "Params.sketch7_width")
sketch7.setExpression("Constraints[9]", "Params.sketch7_height")
pad7 = body5.newObject("PartDesign::Pad", "Pad006")
pad7.Profile = sketch7
pad7.setExpression("Length", "Params.pad7_length")
pad7.Reversed = True

# Sketch on XZ plane
sketch8 = body5.newObject("Sketcher::SketchObject", "Sketch007")
sketch8.AttachmentSupport = (doc.getObject("XZ_Plane004"), [""])
sketch8.MapMode = "FlatFace"
sketch8.AttachmentOffset = App.Placement(V(0, 0, -10), App.Rotation())
add_polygon(sketch8, [(-19.335695, -54.643015), (-19.335695, -32.069846), (-13.782772, -32.069846), (-13.782772, -54.643015)])  # lines 0-3
sketch8.addConstraint(Sketcher.Constraint("Vertical", 0))
sketch8.addConstraint(Sketcher.Constraint("Horizontal", 1))
sketch8.addConstraint(Sketcher.Constraint("Vertical", 2))
sketch8.addConstraint(Sketcher.Constraint("Horizontal", 3))
sketch8.addConstraint(Sketcher.Constraint("DistanceY", 0, 1, 0, 2, Q("22.573169 mm")))
sketch8.addConstraint(Sketcher.Constraint("DistanceX", 1, 1, 1, 2, Q("5.552923 mm")))
sketch8.addConstraint(Sketcher.Constraint("DistanceX", 0, 2, -1, 1, Q("19.335695 mm")))
sketch8.addConstraint(Sketcher.Constraint("DistanceY", 0, 2, -1, 1, Q("32.069846 mm")))
pad8 = body5.newObject("PartDesign::Pad", "Pad007")
pad8.Profile = sketch8
pad8.setExpression("Length", "Params.pad8_length")
pad8.Reversed = True
doc.recompute()

fillet8 = body5.newObject("PartDesign::Fillet", "Fillet007")
fillet8.Base = (pad8, edges_at(pad8, [(-20.77, 5, -29.643)]))
fillet8.setExpression("Radius", "Params.fillet8_radius")
doc.recompute()

fillet9 = body5.newObject("PartDesign::Fillet", "Fillet008")
fillet9.Base = (fillet8, edges_at(fillet8, [(-10.77, 5, -54.643)]))
fillet9.setExpression("Radius", "Params.fillet9_radius")
doc.recompute()

fillet10 = body5.newObject("PartDesign::Fillet", "Fillet009")
fillet10.Base = (fillet9, edges_at(fillet9, [(-10.77, 5, -29.643), (-20.77, 5, -54.643)]))
fillet10.setExpression("Radius", "Params.fillet10_radius")
body6 = doc.addObject("PartDesign::Body", "Body005")

# Sketch on XZ plane
sketch9 = body6.newObject("Sketcher::SketchObject", "Sketch008")
sketch9.AttachmentSupport = (doc.getObject("XZ_Plane005"), [""])
sketch9.MapMode = "FlatFace"
add_polygon(sketch9, [(-88.43157, -35.643015), (-82.067609, -29.279054), (-54.795531, -29.279054), (-48.43157, -35.643015)])  # lines 0-3
sketch9.addConstraint(Sketcher.Constraint("Horizontal", 1))
sketch9.addConstraint(Sketcher.Constraint("Horizontal", 3))
sketch9.addConstraint(Sketcher.Constraint("Perpendicular", 0, 2))
sketch9.addConstraint(Sketcher.Constraint("Equal", 0, 2))
sketch9.addConstraint(Sketcher.Constraint("DistanceX", 3, 2, 3, 1, Q("40 mm")))
sketch9.addConstraint(Sketcher.Constraint("Distance", 0, Q("9 mm")))
sketch9.addConstraint(Sketcher.Constraint("DistanceX", 0, 2, -1, 1, Q("82.067609 mm")))
sketch9.addConstraint(Sketcher.Constraint("DistanceY", 0, 2, -1, 1, Q("29.279054 mm")))
sketch9.setExpression("Constraints[8]", "Params.sketch9_width")
sketch9.setExpression("Constraints[9]", "Params.sketch9_length")
pad9 = body6.newObject("PartDesign::Pad", "Pad008")
pad9.Profile = sketch9
pad9.setExpression("Length", "Params.pad9_length")
pad9.Reversed = True
body7 = doc.addObject("PartDesign::Body", "Body006")

# Sketch on XZ plane
sketch10 = body7.newObject("Sketcher::SketchObject", "Sketch009")
sketch10.AttachmentSupport = (doc.getObject("XZ_Plane006"), [""])
sketch10.MapMode = "FlatFace"
add_polygon(sketch10, [(-88.43157, -54.643015), (-88.43157, -37.643015), (-48.43157, -37.643015), (-48.43157, -54.643015)])  # lines 0-3
sketch10.addGeometry(Part.ArcOfCircle(Part.Circle(V(-55.379313, -48.643015, 0), V(0, 0, 1), 3.667872), math.radians(-90), math.radians(90)), False)  # 4
sketch10.addGeometry(Part.LineSegment(V(-55.379313, -44.975143, 0), V(-60.798284, -44.975143, 0)), False)  # 5
sketch10.addGeometry(Part.ArcOfCircle(Part.Circle(V(-60.798284, -48.643015, 0), V(0, 0, 1), 3.667872), math.radians(90), math.radians(270)), False)  # 6
sketch10.addGeometry(Part.LineSegment(V(-60.798284, -52.310888, 0), V(-55.379313, -52.310888, 0)), False)  # 7
sketch10.addGeometry(Part.ArcOfCircle(Part.Circle(V(-76.064856, -48.643015, 0), V(0, 0, 1), 3.667872), math.radians(-90), math.radians(90)), False)  # 8
sketch10.addGeometry(Part.LineSegment(V(-76.064856, -44.975143, 0), V(-81.483827, -44.975143, 0)), False)  # 9
sketch10.addGeometry(Part.ArcOfCircle(Part.Circle(V(-81.483827, -48.643015, 0), V(0, 0, 1), 3.667872), math.radians(90), math.radians(270)), False)  # 10
sketch10.addGeometry(Part.LineSegment(V(-81.483827, -52.310888, 0), V(-76.064856, -52.310888, 0)), False)  # 11
sketch10.addConstraint(Sketcher.Constraint("Tangent", 4, 2, 5, 1))
sketch10.addConstraint(Sketcher.Constraint("Tangent", 5, 2, 6, 1))
sketch10.addConstraint(Sketcher.Constraint("Tangent", 6, 2, 7, 1))
sketch10.addConstraint(Sketcher.Constraint("Tangent", 7, 2, 4, 1))
sketch10.addConstraint(Sketcher.Constraint("Tangent", 8, 2, 9, 1))
sketch10.addConstraint(Sketcher.Constraint("Tangent", 9, 2, 10, 1))
sketch10.addConstraint(Sketcher.Constraint("Tangent", 10, 2, 11, 1))
sketch10.addConstraint(Sketcher.Constraint("Tangent", 11, 2, 8, 1))
sketch10.addConstraint(Sketcher.Constraint("Vertical", 0))
sketch10.addConstraint(Sketcher.Constraint("Horizontal", 1))
sketch10.addConstraint(Sketcher.Constraint("Vertical", 2))
sketch10.addConstraint(Sketcher.Constraint("Horizontal", 3))
sketch10.addConstraint(Sketcher.Constraint("Horizontal", 5))
sketch10.addConstraint(Sketcher.Constraint("Horizontal", 7))
sketch10.addConstraint(Sketcher.Constraint("Horizontal", 9))
sketch10.addConstraint(Sketcher.Constraint("Horizontal", 11))
sketch10.addConstraint(Sketcher.Constraint("Equal", 6, 8))
sketch10.addConstraint(Sketcher.Constraint("Horizontal", 6, 3, 8, 3))
sketch10.addConstraint(Sketcher.Constraint("Equal", 7, 9))
sketch10.addConstraint(Sketcher.Constraint("DistanceX", 1, 1, 1, 2, Q("40 mm")))
sketch10.addConstraint(Sketcher.Constraint("DistanceY", 0, 1, 0, 2, Q("17 mm")))
sketch10.addConstraint(Sketcher.Constraint("DistanceY", 10, 3, 0, 2, Q("11 mm")))
sketch10.addConstraint(Sketcher.Constraint("Radius", 4, Q("3.667872 mm")))
sketch10.addConstraint(Sketcher.Constraint("DistanceX", 5, 2, 5, 1, Q("5.418971 mm")))
sketch10.addConstraint(Sketcher.Constraint("DistanceX", 0, 2, -1, 1, Q("88.43157 mm")))
sketch10.addConstraint(Sketcher.Constraint("DistanceX", 8, 3, 6, 3, Q("15.266572 mm")))
sketch10.addConstraint(Sketcher.Constraint("DistanceX", 4, 3, -1, 1, Q("55.379313 mm")))
sketch10.addConstraint(Sketcher.Constraint("DistanceY", 4, 3, -1, 1, Q("48.643015 mm")))
sketch10.setExpression("Constraints[23]", "Params.sketch10_width")
sketch10.setExpression("Constraints[24]", "Params.sketch10_height")
pad10 = body7.newObject("PartDesign::Pad", "Pad009")
pad10.Profile = sketch10
pad10.setExpression("Length", "Params.pad10_length")
pad10.Reversed = True
body8 = doc.addObject("PartDesign::Body", "Body007")

# Sketch on XZ plane
sketch11 = body8.newObject("Sketcher::SketchObject", "Sketch010")
sketch11.AttachmentSupport = (doc.getObject("XZ_Plane007"), [""])
sketch11.MapMode = "FlatFace"
sketch11.addGeometry(Part.LineSegment(V(-81.483827, -46.483591, 0), V(-76.064856, -46.483591, 0)), False)
sketch11.addGeometry(Part.ArcOfCircle(Part.Circle(V(-76.064856, -48.643015, 0), V(0, 0, 1), 2.159424), math.radians(-90), math.radians(90)), False)
sketch11.addGeometry(Part.LineSegment(V(-76.064856, -50.80244, 0), V(-81.483827, -50.80244, 0)), False)
sketch11.addGeometry(Part.ArcOfCircle(Part.Circle(V(-81.483827, -48.643015, 0), V(0, 0, 1), 2.159424), math.radians(90), math.radians(270)), False)
sketch11.addConstraint(Sketcher.Constraint("Tangent", 0, 2, 1, 2))
sketch11.addConstraint(Sketcher.Constraint("Tangent", 1, 1, 2, 1))
sketch11.addConstraint(Sketcher.Constraint("Tangent", 2, 2, 3, 2))
sketch11.addConstraint(Sketcher.Constraint("Tangent", 3, 1, 0, 1))
sketch11.addConstraint(Sketcher.Constraint("Horizontal", 0))
sketch11.addConstraint(Sketcher.Constraint("Horizontal", 2))
sketch11.addConstraint(Sketcher.Constraint("Radius", 1, Q("2.159424 mm")))
sketch11.addConstraint(Sketcher.Constraint("DistanceX", 0, 1, 0, 2, Q("5.418971 mm")))
sketch11.addConstraint(Sketcher.Constraint("DistanceY", 0, 2, -1, 1, Q("46.483591 mm")))
sketch11.addConstraint(Sketcher.Constraint("DistanceX", 1, 3, -1, 1, Q("76.064856 mm")))
pad11 = body8.newObject("PartDesign::Pad", "Pad010")
pad11.Profile = sketch11
pad11.setExpression("Length", "Params.pad11_length")
pad11.Reversed = True
body9 = doc.addObject("PartDesign::Body", "Body008")

# Sketch on XZ plane
sketch12 = body9.newObject("Sketcher::SketchObject", "Sketch011")
sketch12.AttachmentSupport = (doc.getObject("XZ_Plane008"), [""])
sketch12.MapMode = "FlatFace"
sketch12.addGeometry(Part.ArcOfCircle(Part.Circle(V(-60.798284, -48.643015, 0), V(0, 0, 1), 2.159424), math.radians(90), math.radians(270)), False)
sketch12.addGeometry(Part.LineSegment(V(-60.798284, -46.483591, 0), V(-55.379313, -46.483591, 0)), False)
sketch12.addGeometry(Part.ArcOfCircle(Part.Circle(V(-55.379313, -48.643015, 0), V(0, 0, 1), 2.159424), math.radians(-90), math.radians(90)), False)
sketch12.addGeometry(Part.LineSegment(V(-55.379313, -50.80244, 0), V(-60.798284, -50.80244, 0)), False)
sketch12.addConstraint(Sketcher.Constraint("Tangent", 0, 1, 1, 1))
sketch12.addConstraint(Sketcher.Constraint("Tangent", 1, 2, 2, 2))
sketch12.addConstraint(Sketcher.Constraint("Tangent", 2, 1, 3, 1))
sketch12.addConstraint(Sketcher.Constraint("Tangent", 3, 2, 0, 2))
sketch12.addConstraint(Sketcher.Constraint("Horizontal", 1))
sketch12.addConstraint(Sketcher.Constraint("Horizontal", 3))
sketch12.addConstraint(Sketcher.Constraint("Radius", 0, Q("2.159424 mm")))
sketch12.addConstraint(Sketcher.Constraint("DistanceX", 1, 1, 1, 2, Q("5.418971 mm")))
sketch12.addConstraint(Sketcher.Constraint("DistanceY", 0, 1, -1, 1, Q("46.483591 mm")))
sketch12.addConstraint(Sketcher.Constraint("DistanceX", 0, 3, -1, 1, Q("60.798284 mm")))
pad12 = body9.newObject("PartDesign::Pad", "Pad011")
pad12.Profile = sketch12
pad12.setExpression("Length", "Params.pad12_length")
pad12.Reversed = True

doc.recompute()
